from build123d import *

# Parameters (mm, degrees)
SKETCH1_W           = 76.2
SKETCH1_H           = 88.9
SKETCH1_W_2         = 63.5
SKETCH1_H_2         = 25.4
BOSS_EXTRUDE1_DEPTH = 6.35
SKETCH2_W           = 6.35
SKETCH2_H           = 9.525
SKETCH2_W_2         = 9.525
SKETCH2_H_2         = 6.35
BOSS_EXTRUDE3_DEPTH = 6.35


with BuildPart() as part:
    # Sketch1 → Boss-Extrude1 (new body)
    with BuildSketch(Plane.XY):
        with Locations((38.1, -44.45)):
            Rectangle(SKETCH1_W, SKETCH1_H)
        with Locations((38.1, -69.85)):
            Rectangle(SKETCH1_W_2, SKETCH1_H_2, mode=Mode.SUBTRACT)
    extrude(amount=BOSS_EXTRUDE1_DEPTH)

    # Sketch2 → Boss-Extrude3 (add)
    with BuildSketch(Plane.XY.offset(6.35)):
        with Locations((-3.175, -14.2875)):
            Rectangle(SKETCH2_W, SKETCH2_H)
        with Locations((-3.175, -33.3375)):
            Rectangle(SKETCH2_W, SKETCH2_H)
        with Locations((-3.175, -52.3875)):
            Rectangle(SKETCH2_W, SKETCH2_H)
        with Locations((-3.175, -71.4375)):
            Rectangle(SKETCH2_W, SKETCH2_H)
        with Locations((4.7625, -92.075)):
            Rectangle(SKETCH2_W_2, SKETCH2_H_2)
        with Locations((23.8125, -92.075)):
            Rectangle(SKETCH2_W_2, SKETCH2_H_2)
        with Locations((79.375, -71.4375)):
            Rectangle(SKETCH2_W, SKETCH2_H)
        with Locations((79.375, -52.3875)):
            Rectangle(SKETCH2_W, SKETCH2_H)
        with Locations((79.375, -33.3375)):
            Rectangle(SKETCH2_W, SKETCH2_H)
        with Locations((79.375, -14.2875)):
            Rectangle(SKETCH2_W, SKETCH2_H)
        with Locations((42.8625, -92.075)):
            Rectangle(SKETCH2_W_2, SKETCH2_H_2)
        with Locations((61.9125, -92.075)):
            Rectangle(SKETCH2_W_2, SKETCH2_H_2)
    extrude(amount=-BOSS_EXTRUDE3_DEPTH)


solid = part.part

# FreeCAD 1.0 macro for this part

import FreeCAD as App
import Part
import Sketcher
from FreeCAD import Vector
Q = App.Units.Quantity

doc = App.newDocument("Part")
body = doc.addObject("PartDesign::Body", "Body")

# Sketch on XY plane
sketch1 = body.newObject("Sketcher::SketchObject", "Sketch")
sketch1.AttachmentSupport = (doc.getObject("XY_Plane"), [""])
sketch1.MapMode = "FlatFace"
sketch1.addGeometry(Part.LineSegment(Vector(0, 0, 0), Vector(0, -89, 0)), False)
sketch1.addGeometry(Part.LineSegment(Vector(0, -89, 0), Vector(76, -89, 0)), False)
sketch1.addGeometry(Part.LineSegment(Vector(76, -89, 0), Vector(76, 0, 0)), False)
sketch1.addGeometry(Part.LineSegment(Vector(76, 0, 0), Vector(0, 0, 0)), False)
sketch1.addGeometry(Part.LineSegment(Vector(70, -83, 0), Vector(6, -83, 0)), False)
sketch1.addGeometry(Part.LineSegment(Vector(6, -83, 0), Vector(6, -57, 0)), False)
sketch1.addGeometry(Part.LineSegment(Vector(6, -57, 0), Vector(70, -57, 0)), False)
sketch1.addGeometry(Part.LineSegment(Vector(70, -57, 0), Vector(70, -83, 0)), False)
sketch1.addConstraint(Sketcher.Constraint("Coincident", 0, 2, 1, 1))
sketch1.addConstraint(Sketcher.Constraint("Coincident", 1, 2, 2, 1))
sketch1.addConstraint(Sketcher.Constraint("Coincident", 2, 2, 3, 1))
sketch1.addConstraint(Sketcher.Constraint("Coincident", 3, 2, 0, 1))
sketch1.addConstraint(Sketcher.Constraint("Coincident", 4, 2, 5, 1))
sketch1.addConstraint(Sketcher.Constraint("Coincident", 5, 2, 6, 1))
sketch1.addConstraint(Sketcher.Constraint("Coincident", 6, 2, 7, 1))
sketch1.addConstraint(Sketcher.Constraint("Coincident", 7, 2, 4, 1))
sketch1.addConstraint(Sketcher.Constraint("Vertical", 0))
sketch1.addConstraint(Sketcher.Constraint("Horizontal", 1))
sketch1.addConstraint(Sketcher.Constraint("Vertical", 2))
sketch1.addConstraint(Sketcher.Constraint("Horizontal", 3))
sketch1.addConstraint(Sketcher.Constraint("Horizontal", 4))
sketch1.addConstraint(Sketcher.Constraint("Vertical", 5))
sketch1.addConstraint(Sketcher.Constraint("Horizontal", 6))
sketch1.addConstraint(Sketcher.Constraint("Vertical", 7))
sketch1.addConstraint(Sketcher.Constraint("Coincident", 3, 2, -1, 1))
sketch1.addConstraint(Sketcher.Constraint("DistanceX", 1, 1, 1, 2, Q("3 in")))
sketch1.addConstraint(Sketcher.Constraint("DistanceY", 5, 1, 5, 2, Q("1 in")))
sketch1.addConstraint(Sketcher.Constraint("DistanceX", 4, 2, 4, 1, Q("2.5 in")))
sketch1.addConstraint(Sketcher.Constraint("DistanceY", 0, 2, 0, 1, Q("3.5 in")))
sketch1.addConstraint(Sketcher.Constraint("DistanceX", -1, 1, 4, 2, Q("0.25 in")))
sketch1.addConstraint(Sketcher.Constraint("DistanceY", 4, 2, -1, 1, Q("3.25 in")))
pad1 = body.newObject("PartDesign::Pad", "Pad")
pad1.Profile = sketch1
pad1.Length = Q("0.25 in")

# Sketch on XY plane
sketch2 = body.newObject("Sketcher::SketchObject", "Sketch001")
sketch2.AttachmentSupport = (doc.getObject("XY_Plane"), [""])
sketch2.MapMode = "FlatFace"
sketch2.AttachmentOffset = App.Placement(Vector(0, 0, 0.25 * 25.4), App.Rotation())
sketch2.addGeometry(Part.LineSegment(Vector(-6, -10, 0), Vector(-6, -19, 0)), False)
sketch2.addGeometry(Part.LineSegment(Vector(-6, -19, 0), Vector(0, -19, 0)), False)
sketch2.addGeometry(Part.LineSegment(Vector(0, -19, 0), Vector(0, -10, 0)), False)
sketch2.addGeometry(Part.LineSegment(Vector(0, -10, 0), Vector(-6, -10, 0)), False)
sketch2.addGeometry(Part.LineSegment(Vector(-6, -29, 0), Vector(-6, -38, 0)), False)
sketch2.addGeometry(Part.LineSegment(Vector(-6, -38, 0), Vector(0, -38, 0)), False)
sketch2.addGeometry(Part.LineSegment(Vector(0, -38, 0), Vector(0, -29, 0)), False)
sketch2.addGeometry(Part.LineSegment(Vector(0, -29, 0), Vector(-6, -29, 0)), False)
sketch2.addGeometry(Part.LineSegment(Vector(-6, -48, 0), Vector(-6, -57, 0)), False)
sketch2.addGeometry(Part.LineSegment(Vector(-6, -57, 0), Vector(0, -57, 0)), False)
sketch2.addGeometry(Part.LineSegment(Vector(0, -57, 0), Vector(0, -48, 0)), False)
sketch2.addGeometry(Part.LineSegment(Vector(0, -48, 0), Vector(-6, -48, 0)), False)
sketch2.addGeometry(Part.LineSegment(Vector(-6, -67, 0), Vector(-6, -76, 0)), False)
sketch2.addGeometry(Part.LineSegment(Vector(-6, -76, 0), Vector(0, -76, 0)), False)
sketch2.addGeometry(Part.LineSegment(Vector(0, -76, 0), Vector(0, -67, 0)), False)
sketch2.addGeometry(Part.LineSegment(Vector(0, -67, 0), Vector(-6, -67, 0)), False)
sketch2.addGeometry(Part.LineSegment(Vector(0, -89, 0), Vector(0, -95, 0)), False)
sketch2.addGeometry(Part.LineSegment(Vector(0, -95, 0), Vector(10, -95, 0)), False)
sketch2.addGeometry(Part.LineSegment(Vector(10, -95, 0), Vector(10, -89, 0)), False)
sketch2.addGeometry(Part.LineSegment(Vector(10, -89, 0), Vector(0, -89, 0)), False)
sketch2.addGeometry(Part.LineSegment(Vector(19, -89, 0), Vector(19, -95, 0)), False)
sketch2.addGeometry(Part.LineSegment(Vector(19, -95, 0), Vector(29, -95, 0)), False)
sketch2.addGeometry(Part.LineSegment(Vector(29, -95, 0), Vector(29, -89, 0)), False)
sketch2.addGeometry(Part.LineSegment(Vector(29, -89, 0), Vector(19, -89, 0)), False)
sketch2.addGeometry(Part.LineSegment(Vector(76, -67, 0), Vector(76, -76, 0)), False)
sketch2.addGeometry(Part.LineSegment(Vector(76, -76, 0), Vector(83, -76, 0)), False)
sketch2.addGeometry(Part.LineSegment(Vector(83, -76, 0), Vector(83, -67, 0)), False)
sketch2.addGeometry(Part.LineSegment(Vector(83, -67, 0), Vector(76, -67, 0)), False)
sketch2.addGeometry(Part.LineSegment(Vector(76, -48, 0), Vector(76, -57, 0)), False)
sketch2.addGeometry(Part.LineSegment(Vector(76, -57, 0), Vector(83, -57, 0)), False)
sketch2.addGeometry(Part.LineSegment(Vector(83, -57, 0), Vector(83, -48, 0)), False)
sketch2.addGeometry(Part.LineSegment(Vector(83, -48, 0), Vector(76, -48, 0)), False)
sketch2.addGeometry(Part.LineSegment(Vector(76, -29, 0), Vector(76, -38, 0)), False)
sketch2.addGeometry(Part.LineSegment(Vector(76, -38, 0), Vector(83, -38, 0)), False)
sketch2.addGeometry(Part.LineSegment(Vector(83, -38, 0), Vector(83, -29, 0)), False)
sketch2.addGeometry(Part.LineSegment(Vector(83, -29, 0), Vector(76, -29, 0)), False)
sketch2.addGeometry(Part.LineSegment(Vector(76, -10, 0), Vector(76, -19, 0)), False)
sketch2.addGeometry(Part.LineSegment(Vector(76, -19, 0), Vector(83, -19, 0)), False)
sketch2.addGeometry(Part.LineSegment(Vector(83, -19, 0), Vector(83, -10, 0)), False)
sketch2.addGeometry(Part.LineSegment(Vector(83, -10, 0), Vector(76, -10, 0)), False)
sketch2.addGeometry(Part.LineSegment(Vector(38, -89, 0), Vector(38, -95, 0)), False)
sketch2.addGeometry(Part.LineSegment(Vector(38, -95, 0), Vector(48, -95, 0)), False)
sketch2.addGeometry(Part.LineSegment(Vector(48, -95, 0), Vector(48, -89, 0)), False)
sketch2.addGeometry(Part.LineSegment(Vector(48, -89, 0), Vector(38, -89, 0)), False)
sketch2.addGeometry(Part.LineSegment(Vector(57, -89, 0), Vector(57, -95, 0)), False)
sketch2.addGeometry(Part.LineSegment(Vector(57, -95, 0), Vector(67, -95, 0)), False)
sketch2.addGeometry(Part.LineSegment(Vector(67, -95, 0), Vector(67, -89, 0)), False)
sketch2.addGeometry(Part.LineSegment(Vector(67, -89, 0), Vector(57, -89, 0)), False)
sketch2.addConstraint(Sketcher.Constraint("Coincident", 0, 2, 1, 1))
sketch2.addConstraint(Sketcher.Constraint("Coincident", 1, 2, 2, 1))
sketch2.addConstraint(Sketcher.Constraint("Coincident", 2, 2, 3, 1))
sketch2.addConstraint(Sketcher.Constraint("Coincident", 3, 2, 0, 1))
sketch2.addConstraint(Sketcher.Constraint("Coincident", 4, 2, 5, 1))
sketch2.addConstraint(Sketcher.Constraint("Coincident", 5, 2, 6, 1))
sketch2.addConstraint(Sketcher.Constraint("Coincident", 6, 2, 7, 1))
sketch2.addConstraint(Sketcher.Constraint("Coincident", 7, 2, 4, 1))
sketch2.addConstraint(Sketcher.Constraint("Coincident", 8, 2, 9, 1))
sketch2.addConstraint(Sketcher.Constraint("Coincident", 9, 2, 10, 1))
sketch2.addConstraint(Sketcher.Constraint("Coincident", 10, 2, 11, 1))
sketch2.addConstraint(Sketcher.Constraint("Coincident", 11, 2, 8, 1))
sketch2.addConstraint(Sketcher.Constraint("Coincident", 12, 2, 13, 1))
sketch2.addConstraint(Sketcher.Constraint("Coincident", 13, 2, 14, 1))
sketch2.addConstraint(Sketcher.Constraint("Coincident", 14, 2, 15, 1))
sketch2.addConstraint(Sketcher.Constraint("Coincident", 15, 2, 12, 1))
sketch2.addConstraint(Sketcher.Constraint("Coincident", 16, 2, 17, 1))
sketch2.addConstraint(Sketcher.Constraint("Coincident", 17, 2, 18, 1))
sketch2.addConstraint(Sketcher.Constraint("Coincident", 18, 2, 19, 1))
sketch2.addConstraint(Sketcher.Constraint("Coincident", 19, 2, 16, 1))
sketch2.addConstraint(Sketcher.Constraint("Coincident", 20, 2, 21, 1))
sketch2.addConstraint(Sketcher.Constraint("Coincident", 21, 2, 22, 1))
sketch2.addConstraint(Sketcher.Constraint("Coincident", 22, 2, 23, 1))
sketch2.addConstraint(Sketcher.Constraint("Coincident", 23, 2, 20, 1))
sketch2.addConstraint(Sketcher.Constraint("Coincident", 24, 2, 25, 1))
sketch2.addConstraint(Sketcher.Constraint("Coincident", 25, 2, 26, 1))
sketch2.addConstraint(Sketcher.Constraint("Coincident", 26, 2, 27, 1))
sketch2.addConstraint(Sketcher.Constraint("Coincident", 27, 2, 24, 1))
sketch2.addConstraint(Sketcher.Constraint("Coincident", 28, 2, 29, 1))
sketch2.addConstraint(Sketcher.Constraint("Coincident", 29, 2, 30, 1))
sketch2.addConstraint(Sketcher.Constraint("Coincident", 30, 2, 31, 1))
sketch2.addConstraint(Sketcher.Constraint("Coincident", 31, 2, 28, 1))
sketch2.addConstraint(Sketcher.Constraint("Coincident", 32, 2, 33, 1))
sketch2.addConstraint(Sketcher.Constraint("Coincident", 33, 2, 34, 1))
sketch2.addConstraint(Sketcher.Constraint("Coincident", 34, 2, 35, 1))
sketch2.addConstraint(Sketcher.Constraint("Coincident", 35, 2, 32, 1))
sketch2.addConstraint(Sketcher.Constraint("Coincident", 36, 2, 37, 1))
sketch2.addConstraint(Sketcher.Constraint("Coincident", 37, 2, 38, 1))
sketch2.addConstraint(Sketcher.Constraint("Coincident", 38, 2, 39, 1))
sketch2.addConstraint(Sketcher.Constraint("Coincident", 39, 2, 36, 1))
sketch2.addConstraint(Sketcher.Constraint("Coincident", 40, 2, 41, 1))
sketch2.addConstraint(Sketcher.Constraint("Coincident", 41, 2, 42, 1))
sketch2.addConstraint(Sketcher.Constraint("Coincident", 42, 2, 43, 1))
sketch2.addConstraint(Sketcher.Constraint("Coincident", 43, 2, 40, 1))
sketch2.addConstraint(Sketcher.Constraint("Coincident", 44, 2, 45, 1))
sketch2.addConstraint(Sketcher.Constraint("Coincident", 45, 2, 46, 1))
sketch2.addConstraint(Sketcher.Constraint("Coincident", 46, 2, 47, 1))
sketch2.addConstraint(Sketcher.Constraint("Coincident", 47, 2, 44, 1))
sketch2.addConstraint(Sketcher.Constraint("Vertical", 0))
sketch2.addConstraint(Sketcher.Constraint("Horizontal", 1))
sketch2.addConstraint(Sketcher.Constraint("Vertical", 2))
sketch2.addConstraint(Sketcher.Constraint("Horizontal", 3))
sketch2.addConstraint(Sketcher.Constraint("Vertical", 4))
sketch2.addConstraint(Sketcher.Constraint("Horizontal", 5))
sketch2.addConstraint(Sketcher.Constraint("Vertical", 6))
sketch2.addConstraint(Sketcher.Constraint("Horizontal", 7))
sketch2.addConstraint(Sketcher.Constraint("Vertical", 8))
sketch2.addConstraint(Sketcher.Constraint("Horizontal", 9))
sketch2.addConstraint(Sketcher.Constraint("Vertical", 10))
sketch2.addConstraint(Sketcher.Constraint("Horizontal", 11))
sketch2.addConstraint(Sketcher.Constraint("Vertical", 12))
sketch2.addConstraint(Sketcher.Constraint("Horizontal", 13))
sketch2.addConstraint(Sketcher.Constraint("Vertical", 14))
sketch2.addConstraint(Sketcher.Constraint("Horizontal", 15))
sketch2.addConstraint(Sketcher.Constraint("Vertical", 16))
sketch2.addConstraint(Sketcher.Constraint("Horizontal", 17))
sketch2.addConstraint(Sketcher.Constraint("Vertical", 18))
sketch2.addConstraint(Sketcher.Constraint("Horizontal", 19))
sketch2.addConstraint(Sketcher.Constraint("Vertical", 20))
sketch2.addConstraint(Sketcher.Constraint("Horizontal", 21))
sketch2.addConstraint(Sketcher.Constraint("Vertical", 22))
sketch2.addConstraint(Sketcher.Constraint("Horizontal", 23))
sketch2.addConstraint(Sketcher.Constraint("Vertical", 24))
sketch2.addConstraint(Sketcher.Constraint("Horizontal", 25))
sketch2.addConstraint(Sketcher.Constraint("Vertical", 26))
sketch2.addConstraint(Sketcher.Constraint("Horizontal", 27))
sketch2.addConstraint(Sketcher.Constraint("Vertical", 28))
sketch2.addConstraint(Sketcher.Constraint("Horizontal", 29))
sketch2.addConstraint(Sketcher.Constraint("Vertical", 30))
sketch2.addConstraint(Sketcher.Constraint("Horizontal", 31))
sketch2.addConstraint(Sketcher.Constraint("Vertical", 32))
sketch2.addConstraint(Sketcher.Constraint("Horizontal", 33))
sketch2.addConstraint(Sketcher.Constraint("Vertical", 34))
sketch2.addConstraint(Sketcher.Constraint("Horizontal", 35))
sketch2.addConstraint(Sketcher.Constraint("Vertical", 36))
sketch2.addConstraint(Sketcher.Constraint("Horizontal", 37))
sketch2.addConstraint(Sketcher.Constraint("Vertical", 38))
sketch2.addConstraint(Sketcher.Constraint("Horizontal", 39))
sketch2.addConstraint(Sketcher.Constraint("Vertical", 40))
sketch2.addConstraint(Sketcher.Constraint("Horizontal", 41))
sketch2.addConstraint(Sketcher.Constraint("Vertical", 42))
sketch2.addConstraint(Sketcher.Constraint("Horizontal", 43))
sketch2.addConstraint(Sketcher.Constraint("Vertical", 44))
sketch2.addConstraint(Sketcher.Constraint("Horizontal", 45))
sketch2.addConstraint(Sketcher.Constraint("Vertical", 46))
sketch2.addConstraint(Sketcher.Constraint("Horizontal", 47))
sketch2.addConstraint(Sketcher.Constraint("PointOnObject", 1, 2, -2))
sketch2.addConstraint(Sketcher.Constraint("PointOnObject", 5, 2, -2))
sketch2.addConstraint(Sketcher.Constraint("PointOnObject", 9, 2, -2))
sketch2.addConstraint(Sketcher.Constraint("PointOnObject", 13, 2, -2))
sketch2.addConstraint(Sketcher.Constraint("PointOnObject", 16, 2, -2))
sketch2.addConstraint(Sketcher.Constraint("Horizontal", 17, 2, 20, 2))
sketch2.addConstraint(Sketcher.Constraint("Horizontal", 19, 2, 22, 2))
sketch2.addConstraint(Sketcher.Constraint("Horizontal", 13, 2, 24, 2))
sketch2.addConstraint(Sketcher.Constraint("Horizontal", 15, 2, 26, 2))
sketch2.addConstraint(Sketcher.Constraint("Horizontal", 9, 2, 28, 2))
sketch2.addConstraint(Sketcher.Constraint("Horizontal", 11, 2, 30, 2))
sketch2.addConstraint(Sketcher.Constraint("Horizontal", 5, 2, 32, 2))
sketch2.addConstraint(Sketcher.Constraint("Horizontal", 7, 2, 34, 2))
sketch2.addConstraint(Sketcher.Constraint("Horizontal", 1, 2, 36, 2))
sketch2.addConstraint(Sketcher.Constraint("Horizontal", 3, 2, 38, 2))
sketch2.addConstraint(Sketcher.Constraint("Horizontal", 21, 2, 40, 2))
sketch2.addConstraint(Sketcher.Constraint("Horizontal", 23, 2, 42, 2))
sketch2.addConstraint(Sketcher.Constraint("Horizontal", 41, 2, 44, 2))
sketch2.addConstraint(Sketcher.Constraint("Horizontal", 43, 2, 46, 2))
sketch2.addConstraint(Sketcher.Constraint("Vertical", 3, 2, 4, 2))
sketch2.addConstraint(Sketcher.Constraint("Vertical", 7, 2, 8, 2))
sketch2.addConstraint(Sketcher.Constraint("Vertical", 11, 2, 12, 2))
sketch2.addConstraint(Sketcher.Constraint("Vertical", 27, 2, 28, 2))
sketch2.addConstraint(Sketcher.Constraint("Vertical", 26, 2, 29, 2))
sketch2.addConstraint(Sketcher.Constraint("Vertical", 31, 2, 32, 2))
sketch2.addConstraint(Sketcher.Constraint("Vertical", 30, 2, 33, 2))
sketch2.addConstraint(Sketcher.Constraint("Vertical", 35, 2, 36, 2))
sketch2.addConstraint(Sketcher.Constraint("Vertical", 34, 2, 37, 2))
sketch2.addConstraint(Sketcher.Constraint("Equal", 19, 21))
sketch2.addConstraint(Sketcher.Constraint("Equal", 15, 25))
sketch2.addConstraint(Sketcher.Constraint("Equal", 23, 41))
sketch2.addConstraint(Sketcher.Constraint("Equal", 43, 45))
sketch2.addConstraint(Sketcher.Constraint("Equal", 47, 0))
sketch2.addConstraint(Sketcher.Constraint("Equal", 2, 4))
sketch2.addConstraint(Sketcher.Constraint("Equal", 6, 8))
sketch2.addConstraint(Sketcher.Constraint("Equal", 10, 12))
sketch2.addConstraint(Sketcher.Constraint("Equal", 39, 16))
sketch2.addConstraint(Sketcher.Constraint("DistanceY", 12, 2, -1, 1, Q("3 in")))
sketch2.addConstraint(Sketcher.Constraint("DistanceX", -1, 1, 24, 2, Q("3 in")))
sketch2.addConstraint(Sketcher.Constraint("DistanceX", 1, 1, 1, 2, Q("0.25 in")))
sketch2.addConstraint(Sketcher.Constraint("DistanceY", 4, 2, -1, 1, Q("1.5 in")))
sketch2.addConstraint(Sketcher.Constraint("DistanceY", 18, 2, -1, 1, Q("3.5 in")))
sketch2.addConstraint(Sketcher.Constraint("DistanceX", -1, 1, 40, 2, Q("1.5 in")))
sketch2.addConstraint(Sketcher.Constraint("DistanceY", 8, 2, 0, 2, Q("1.5 in")))
sketch2.addConstraint(Sketcher.Constraint("DistanceY", 16, 2, 9, 2, Q("1.5 in")))
sketch2.addConstraint(Sketcher.Constraint("DistanceX", 23, 2, 25, 2, Q("2.5 in")))
sketch2.addConstraint(Sketcher.Constraint("DistanceX", 17, 1, 17, 2, Q("0.375 in")))
sketch2.addConstraint(Sketcher.Constraint("DistanceX", -1, 1, 44, 2, Q("2.25 in")))
pad2 = body.newObject("PartDesign::Pad", "Pad001")
pad2.Profile = sketch2
pad2.Length = Q("0.25 in")
pad2.Reversed = True

doc.recompute()
